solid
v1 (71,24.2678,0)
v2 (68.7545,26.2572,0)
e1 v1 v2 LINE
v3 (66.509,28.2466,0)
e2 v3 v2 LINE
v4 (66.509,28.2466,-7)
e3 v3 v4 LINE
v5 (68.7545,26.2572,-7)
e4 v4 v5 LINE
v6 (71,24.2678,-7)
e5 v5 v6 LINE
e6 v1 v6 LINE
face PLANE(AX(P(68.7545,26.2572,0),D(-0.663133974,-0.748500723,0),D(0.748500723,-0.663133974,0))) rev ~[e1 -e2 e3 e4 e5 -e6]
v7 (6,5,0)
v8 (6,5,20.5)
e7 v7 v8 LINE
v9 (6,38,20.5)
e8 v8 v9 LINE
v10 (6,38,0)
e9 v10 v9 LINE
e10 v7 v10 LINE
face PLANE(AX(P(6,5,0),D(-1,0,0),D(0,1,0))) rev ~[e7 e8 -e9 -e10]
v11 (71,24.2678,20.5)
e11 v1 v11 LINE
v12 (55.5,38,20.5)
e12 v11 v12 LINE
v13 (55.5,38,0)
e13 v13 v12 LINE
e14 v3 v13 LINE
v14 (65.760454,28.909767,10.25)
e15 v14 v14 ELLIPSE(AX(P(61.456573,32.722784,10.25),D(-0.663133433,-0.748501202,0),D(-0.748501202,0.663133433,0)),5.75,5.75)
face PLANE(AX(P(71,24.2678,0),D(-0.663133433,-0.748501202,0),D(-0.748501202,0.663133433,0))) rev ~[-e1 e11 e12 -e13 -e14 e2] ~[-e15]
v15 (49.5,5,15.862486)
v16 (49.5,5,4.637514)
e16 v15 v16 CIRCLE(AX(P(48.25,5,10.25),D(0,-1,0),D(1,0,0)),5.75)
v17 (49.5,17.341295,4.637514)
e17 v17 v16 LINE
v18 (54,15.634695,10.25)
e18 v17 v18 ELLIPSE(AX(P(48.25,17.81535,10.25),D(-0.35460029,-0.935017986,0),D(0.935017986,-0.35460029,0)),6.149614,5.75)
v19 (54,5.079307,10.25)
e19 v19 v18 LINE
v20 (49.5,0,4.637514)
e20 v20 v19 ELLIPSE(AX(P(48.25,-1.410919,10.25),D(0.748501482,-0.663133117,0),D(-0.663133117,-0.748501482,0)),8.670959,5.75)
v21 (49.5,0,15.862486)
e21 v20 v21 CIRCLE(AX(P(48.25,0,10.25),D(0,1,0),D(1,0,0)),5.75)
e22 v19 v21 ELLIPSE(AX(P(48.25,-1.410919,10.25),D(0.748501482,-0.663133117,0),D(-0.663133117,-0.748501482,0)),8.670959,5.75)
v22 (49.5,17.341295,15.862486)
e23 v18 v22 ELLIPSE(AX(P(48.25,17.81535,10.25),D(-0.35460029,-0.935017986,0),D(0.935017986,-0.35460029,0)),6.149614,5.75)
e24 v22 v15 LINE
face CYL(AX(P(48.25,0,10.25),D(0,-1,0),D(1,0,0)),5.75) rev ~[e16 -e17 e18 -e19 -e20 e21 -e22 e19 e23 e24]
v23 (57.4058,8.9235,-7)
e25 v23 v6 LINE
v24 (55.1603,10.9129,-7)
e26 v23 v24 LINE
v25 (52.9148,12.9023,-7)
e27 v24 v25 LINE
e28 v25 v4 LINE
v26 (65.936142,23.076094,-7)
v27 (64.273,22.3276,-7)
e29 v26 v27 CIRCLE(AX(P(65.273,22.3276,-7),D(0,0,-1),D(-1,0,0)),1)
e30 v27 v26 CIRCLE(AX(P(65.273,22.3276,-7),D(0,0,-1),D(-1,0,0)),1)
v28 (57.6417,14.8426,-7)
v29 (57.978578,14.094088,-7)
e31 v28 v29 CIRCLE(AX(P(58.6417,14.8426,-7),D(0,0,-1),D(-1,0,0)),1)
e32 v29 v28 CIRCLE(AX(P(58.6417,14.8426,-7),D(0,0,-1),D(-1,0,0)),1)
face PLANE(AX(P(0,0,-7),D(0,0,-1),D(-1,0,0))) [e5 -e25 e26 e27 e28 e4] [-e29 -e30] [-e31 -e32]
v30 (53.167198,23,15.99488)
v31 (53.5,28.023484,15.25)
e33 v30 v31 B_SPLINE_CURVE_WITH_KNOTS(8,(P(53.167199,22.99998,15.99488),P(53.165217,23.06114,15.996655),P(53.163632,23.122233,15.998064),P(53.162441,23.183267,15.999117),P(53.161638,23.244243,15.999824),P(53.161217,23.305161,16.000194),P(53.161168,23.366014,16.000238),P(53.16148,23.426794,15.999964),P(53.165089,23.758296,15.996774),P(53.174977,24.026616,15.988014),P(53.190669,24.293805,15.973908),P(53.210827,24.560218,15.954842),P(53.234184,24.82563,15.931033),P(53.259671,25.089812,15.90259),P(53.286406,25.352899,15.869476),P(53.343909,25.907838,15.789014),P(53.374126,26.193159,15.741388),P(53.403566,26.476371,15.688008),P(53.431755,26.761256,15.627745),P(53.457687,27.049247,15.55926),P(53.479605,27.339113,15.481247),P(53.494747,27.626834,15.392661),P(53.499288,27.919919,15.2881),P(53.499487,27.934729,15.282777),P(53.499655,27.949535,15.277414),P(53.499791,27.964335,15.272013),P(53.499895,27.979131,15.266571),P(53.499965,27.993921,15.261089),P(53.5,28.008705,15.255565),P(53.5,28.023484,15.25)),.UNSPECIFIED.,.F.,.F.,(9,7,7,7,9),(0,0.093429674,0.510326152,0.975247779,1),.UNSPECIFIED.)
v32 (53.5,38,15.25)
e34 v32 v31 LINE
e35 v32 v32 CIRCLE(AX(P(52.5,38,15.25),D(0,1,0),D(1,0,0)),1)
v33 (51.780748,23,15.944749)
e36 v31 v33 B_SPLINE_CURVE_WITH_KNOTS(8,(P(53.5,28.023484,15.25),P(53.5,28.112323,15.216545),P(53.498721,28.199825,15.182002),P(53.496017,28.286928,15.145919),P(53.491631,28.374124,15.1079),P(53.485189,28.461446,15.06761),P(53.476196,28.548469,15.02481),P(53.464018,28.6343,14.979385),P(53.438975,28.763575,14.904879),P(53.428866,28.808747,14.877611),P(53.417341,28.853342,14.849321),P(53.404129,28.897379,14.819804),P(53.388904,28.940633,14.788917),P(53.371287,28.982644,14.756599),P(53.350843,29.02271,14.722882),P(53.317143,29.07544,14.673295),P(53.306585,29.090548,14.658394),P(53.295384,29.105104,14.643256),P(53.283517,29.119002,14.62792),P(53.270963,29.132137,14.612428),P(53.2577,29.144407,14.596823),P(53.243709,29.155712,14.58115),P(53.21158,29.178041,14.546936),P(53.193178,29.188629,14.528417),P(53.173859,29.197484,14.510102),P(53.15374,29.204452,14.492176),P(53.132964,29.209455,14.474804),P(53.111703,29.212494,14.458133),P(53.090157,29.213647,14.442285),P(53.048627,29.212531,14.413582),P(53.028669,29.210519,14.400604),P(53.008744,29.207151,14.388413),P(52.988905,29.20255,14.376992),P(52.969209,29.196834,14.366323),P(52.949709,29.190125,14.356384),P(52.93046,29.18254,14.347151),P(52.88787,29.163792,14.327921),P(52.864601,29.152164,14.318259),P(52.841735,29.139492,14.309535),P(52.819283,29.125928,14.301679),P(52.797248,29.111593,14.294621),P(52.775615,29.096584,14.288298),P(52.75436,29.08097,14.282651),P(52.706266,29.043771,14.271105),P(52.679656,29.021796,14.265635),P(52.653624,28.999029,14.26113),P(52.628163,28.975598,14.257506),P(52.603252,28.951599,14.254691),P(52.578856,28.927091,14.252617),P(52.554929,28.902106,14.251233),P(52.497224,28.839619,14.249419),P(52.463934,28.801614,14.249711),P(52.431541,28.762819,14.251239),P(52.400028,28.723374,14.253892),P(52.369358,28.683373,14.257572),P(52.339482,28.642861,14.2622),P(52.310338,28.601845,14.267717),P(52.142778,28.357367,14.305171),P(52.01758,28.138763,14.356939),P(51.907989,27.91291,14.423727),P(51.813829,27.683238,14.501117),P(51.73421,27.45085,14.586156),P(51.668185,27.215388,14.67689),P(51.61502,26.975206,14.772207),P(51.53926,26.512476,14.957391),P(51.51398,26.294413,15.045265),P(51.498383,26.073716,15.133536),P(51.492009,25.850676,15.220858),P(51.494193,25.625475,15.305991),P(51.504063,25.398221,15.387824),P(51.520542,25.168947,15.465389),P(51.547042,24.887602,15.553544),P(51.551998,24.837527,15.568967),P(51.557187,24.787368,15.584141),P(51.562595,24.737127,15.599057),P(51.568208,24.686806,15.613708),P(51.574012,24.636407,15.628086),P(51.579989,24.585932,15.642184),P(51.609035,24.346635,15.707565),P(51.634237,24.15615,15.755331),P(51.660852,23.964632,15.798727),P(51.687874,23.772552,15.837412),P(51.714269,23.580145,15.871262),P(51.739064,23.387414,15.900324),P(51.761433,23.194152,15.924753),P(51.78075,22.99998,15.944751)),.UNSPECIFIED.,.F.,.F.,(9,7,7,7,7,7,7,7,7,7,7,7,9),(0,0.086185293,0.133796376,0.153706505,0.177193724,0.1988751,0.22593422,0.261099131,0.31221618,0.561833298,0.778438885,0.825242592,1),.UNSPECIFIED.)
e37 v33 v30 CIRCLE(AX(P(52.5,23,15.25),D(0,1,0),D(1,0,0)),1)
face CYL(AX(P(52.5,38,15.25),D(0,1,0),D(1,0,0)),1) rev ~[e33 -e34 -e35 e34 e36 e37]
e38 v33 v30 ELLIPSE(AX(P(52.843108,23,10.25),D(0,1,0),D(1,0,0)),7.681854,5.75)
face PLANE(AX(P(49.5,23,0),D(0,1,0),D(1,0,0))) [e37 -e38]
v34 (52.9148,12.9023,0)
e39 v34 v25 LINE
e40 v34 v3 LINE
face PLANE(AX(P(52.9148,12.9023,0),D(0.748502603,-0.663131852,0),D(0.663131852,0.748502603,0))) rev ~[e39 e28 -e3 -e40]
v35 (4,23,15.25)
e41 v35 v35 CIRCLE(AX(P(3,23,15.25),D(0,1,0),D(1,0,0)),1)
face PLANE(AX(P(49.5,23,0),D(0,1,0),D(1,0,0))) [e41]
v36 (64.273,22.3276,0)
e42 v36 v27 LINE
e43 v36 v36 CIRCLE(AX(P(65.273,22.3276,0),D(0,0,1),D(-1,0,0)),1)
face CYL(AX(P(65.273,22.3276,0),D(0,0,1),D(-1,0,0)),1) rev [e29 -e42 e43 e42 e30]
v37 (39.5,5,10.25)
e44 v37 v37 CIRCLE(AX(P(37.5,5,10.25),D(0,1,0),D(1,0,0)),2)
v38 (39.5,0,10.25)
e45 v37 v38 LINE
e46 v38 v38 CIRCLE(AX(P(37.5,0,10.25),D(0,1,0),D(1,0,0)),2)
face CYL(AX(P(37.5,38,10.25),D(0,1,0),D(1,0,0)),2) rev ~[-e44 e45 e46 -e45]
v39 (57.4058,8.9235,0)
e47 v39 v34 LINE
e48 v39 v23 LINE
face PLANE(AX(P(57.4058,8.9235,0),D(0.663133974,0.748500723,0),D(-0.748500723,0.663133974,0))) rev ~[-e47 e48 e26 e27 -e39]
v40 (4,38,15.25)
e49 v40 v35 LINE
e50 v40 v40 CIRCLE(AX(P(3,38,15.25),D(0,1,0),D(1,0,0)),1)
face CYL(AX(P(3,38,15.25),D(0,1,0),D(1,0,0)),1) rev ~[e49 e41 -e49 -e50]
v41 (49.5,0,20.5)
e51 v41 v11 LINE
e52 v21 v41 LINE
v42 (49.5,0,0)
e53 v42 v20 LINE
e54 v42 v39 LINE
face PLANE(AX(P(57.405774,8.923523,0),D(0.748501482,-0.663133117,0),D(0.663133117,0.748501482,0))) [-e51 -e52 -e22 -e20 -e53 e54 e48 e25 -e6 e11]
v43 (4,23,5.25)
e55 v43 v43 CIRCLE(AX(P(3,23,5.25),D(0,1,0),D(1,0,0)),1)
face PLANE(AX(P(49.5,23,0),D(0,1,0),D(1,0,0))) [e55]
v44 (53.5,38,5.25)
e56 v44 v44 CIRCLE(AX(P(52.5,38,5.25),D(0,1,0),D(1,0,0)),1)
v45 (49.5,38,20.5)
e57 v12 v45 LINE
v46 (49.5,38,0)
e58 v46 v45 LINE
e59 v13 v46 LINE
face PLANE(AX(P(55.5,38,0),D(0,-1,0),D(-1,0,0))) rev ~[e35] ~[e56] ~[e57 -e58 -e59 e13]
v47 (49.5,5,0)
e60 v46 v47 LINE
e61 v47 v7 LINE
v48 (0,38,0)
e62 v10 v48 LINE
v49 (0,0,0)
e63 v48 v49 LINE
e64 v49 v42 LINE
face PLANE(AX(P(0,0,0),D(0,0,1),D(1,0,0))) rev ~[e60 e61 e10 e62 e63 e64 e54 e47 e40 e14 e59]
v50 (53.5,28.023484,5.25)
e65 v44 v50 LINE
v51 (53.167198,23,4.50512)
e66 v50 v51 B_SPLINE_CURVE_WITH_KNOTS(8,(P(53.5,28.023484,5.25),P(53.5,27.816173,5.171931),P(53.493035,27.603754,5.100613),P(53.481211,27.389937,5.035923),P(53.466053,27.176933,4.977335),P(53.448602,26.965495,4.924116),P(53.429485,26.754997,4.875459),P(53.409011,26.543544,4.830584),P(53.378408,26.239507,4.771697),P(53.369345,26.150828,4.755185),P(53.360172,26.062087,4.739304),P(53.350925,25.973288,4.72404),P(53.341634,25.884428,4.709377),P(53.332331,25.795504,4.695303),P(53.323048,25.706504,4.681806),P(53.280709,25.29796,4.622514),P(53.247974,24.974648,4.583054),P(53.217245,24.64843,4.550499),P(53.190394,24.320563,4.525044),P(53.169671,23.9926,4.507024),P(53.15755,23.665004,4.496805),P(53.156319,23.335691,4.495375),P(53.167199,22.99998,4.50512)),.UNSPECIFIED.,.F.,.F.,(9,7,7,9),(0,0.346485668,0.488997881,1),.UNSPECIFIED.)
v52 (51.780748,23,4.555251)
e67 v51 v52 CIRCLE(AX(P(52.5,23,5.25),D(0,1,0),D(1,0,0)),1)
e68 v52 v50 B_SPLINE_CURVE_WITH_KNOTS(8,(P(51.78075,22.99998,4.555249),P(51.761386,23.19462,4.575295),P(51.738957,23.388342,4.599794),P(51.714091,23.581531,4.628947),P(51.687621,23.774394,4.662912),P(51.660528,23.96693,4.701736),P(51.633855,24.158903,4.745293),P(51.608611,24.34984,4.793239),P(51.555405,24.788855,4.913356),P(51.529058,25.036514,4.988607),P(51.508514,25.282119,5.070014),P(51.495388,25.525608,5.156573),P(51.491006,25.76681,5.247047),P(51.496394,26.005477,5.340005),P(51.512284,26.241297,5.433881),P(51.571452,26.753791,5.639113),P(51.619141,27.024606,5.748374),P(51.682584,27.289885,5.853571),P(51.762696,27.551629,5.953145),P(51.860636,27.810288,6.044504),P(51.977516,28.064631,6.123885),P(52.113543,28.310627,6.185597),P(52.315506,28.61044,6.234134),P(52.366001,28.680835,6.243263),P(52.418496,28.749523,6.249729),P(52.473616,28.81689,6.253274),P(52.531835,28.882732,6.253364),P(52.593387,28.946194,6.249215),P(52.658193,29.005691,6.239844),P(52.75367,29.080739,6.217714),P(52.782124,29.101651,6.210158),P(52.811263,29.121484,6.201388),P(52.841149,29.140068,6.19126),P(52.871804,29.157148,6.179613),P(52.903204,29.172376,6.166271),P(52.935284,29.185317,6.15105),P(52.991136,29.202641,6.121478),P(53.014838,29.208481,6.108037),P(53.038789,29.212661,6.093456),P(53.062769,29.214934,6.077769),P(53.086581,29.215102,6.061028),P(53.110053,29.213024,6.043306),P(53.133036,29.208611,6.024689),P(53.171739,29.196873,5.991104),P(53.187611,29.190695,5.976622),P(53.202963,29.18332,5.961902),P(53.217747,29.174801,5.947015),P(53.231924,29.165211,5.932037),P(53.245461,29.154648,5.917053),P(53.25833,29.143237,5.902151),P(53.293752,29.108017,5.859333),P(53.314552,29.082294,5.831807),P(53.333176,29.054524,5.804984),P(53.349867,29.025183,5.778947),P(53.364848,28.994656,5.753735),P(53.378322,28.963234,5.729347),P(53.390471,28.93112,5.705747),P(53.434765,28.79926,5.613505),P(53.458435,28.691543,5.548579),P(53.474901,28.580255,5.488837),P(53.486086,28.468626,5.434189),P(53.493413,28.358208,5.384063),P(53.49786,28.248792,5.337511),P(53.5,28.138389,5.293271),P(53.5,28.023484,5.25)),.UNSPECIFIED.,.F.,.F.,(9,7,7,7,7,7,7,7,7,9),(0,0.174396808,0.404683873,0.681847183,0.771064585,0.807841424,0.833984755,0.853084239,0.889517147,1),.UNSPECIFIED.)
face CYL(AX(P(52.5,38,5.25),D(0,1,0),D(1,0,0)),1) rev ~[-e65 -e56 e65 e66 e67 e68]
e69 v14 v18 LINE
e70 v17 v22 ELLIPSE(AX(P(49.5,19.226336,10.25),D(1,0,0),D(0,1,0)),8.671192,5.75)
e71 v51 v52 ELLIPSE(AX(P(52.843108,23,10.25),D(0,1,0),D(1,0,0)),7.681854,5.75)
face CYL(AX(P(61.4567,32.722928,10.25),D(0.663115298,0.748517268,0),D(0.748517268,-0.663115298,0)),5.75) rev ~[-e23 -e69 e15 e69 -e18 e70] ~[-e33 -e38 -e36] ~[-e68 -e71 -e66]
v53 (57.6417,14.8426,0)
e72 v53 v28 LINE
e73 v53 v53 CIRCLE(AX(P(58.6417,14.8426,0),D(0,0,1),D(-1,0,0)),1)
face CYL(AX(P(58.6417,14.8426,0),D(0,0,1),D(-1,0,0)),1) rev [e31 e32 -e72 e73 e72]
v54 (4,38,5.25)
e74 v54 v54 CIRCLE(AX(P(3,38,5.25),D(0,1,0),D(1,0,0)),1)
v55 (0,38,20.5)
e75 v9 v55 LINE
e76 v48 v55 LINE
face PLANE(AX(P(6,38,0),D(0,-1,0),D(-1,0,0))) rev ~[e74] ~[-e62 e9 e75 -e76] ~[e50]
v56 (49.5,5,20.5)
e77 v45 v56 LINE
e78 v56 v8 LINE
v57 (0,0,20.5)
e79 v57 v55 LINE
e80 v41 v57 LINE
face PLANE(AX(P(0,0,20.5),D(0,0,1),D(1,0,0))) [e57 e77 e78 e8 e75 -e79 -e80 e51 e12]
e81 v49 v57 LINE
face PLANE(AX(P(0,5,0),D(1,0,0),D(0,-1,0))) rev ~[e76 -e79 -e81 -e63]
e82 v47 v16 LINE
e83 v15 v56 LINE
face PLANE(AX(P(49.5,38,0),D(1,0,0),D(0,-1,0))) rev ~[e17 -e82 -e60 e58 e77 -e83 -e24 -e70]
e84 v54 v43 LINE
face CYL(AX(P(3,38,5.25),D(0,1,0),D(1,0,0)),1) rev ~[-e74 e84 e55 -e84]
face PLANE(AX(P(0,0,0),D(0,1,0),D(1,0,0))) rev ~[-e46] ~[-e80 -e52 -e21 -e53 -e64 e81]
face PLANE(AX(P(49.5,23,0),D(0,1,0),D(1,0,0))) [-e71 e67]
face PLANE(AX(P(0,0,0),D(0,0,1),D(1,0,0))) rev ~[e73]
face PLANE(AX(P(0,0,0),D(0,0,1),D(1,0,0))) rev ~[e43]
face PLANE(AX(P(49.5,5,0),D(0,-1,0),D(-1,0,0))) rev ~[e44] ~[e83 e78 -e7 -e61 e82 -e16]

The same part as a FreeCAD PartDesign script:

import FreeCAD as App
import Part
import Sketcher
Q = App.Units.Quantity

doc = App.newDocument("Part")
body = doc.addObject("PartDesign::Body", "Body")

# Sketch on XY plane
sketch1 = body.newObject("Sketcher::SketchObject", "Sketch")
sketch1.AttachmentSupport = (doc.getObject("XY_Plane"), [""])
sketch1.MapMode = "FlatFace"
sketch1.addGeometry([
    Part.LineSegment(App.Vector(0, 0, 0), App.Vector(49.5, 0, 0)),  # 0
    Part.LineSegment(App.Vector(49.5, 0, 0), App.Vector(71, 24.2678, 0)),  # 1
    Part.LineSegment(App.Vector(71, 24.2678, 0), App.Vector(55.5, 38, 0)),  # 2
    Part.LineSegment(App.Vector(55.5, 38, 0), App.Vector(49.5, 38, 0)),  # 3
    Part.LineSegment(App.Vector(49.5, 38, 0), App.Vector(49.5, 5, 0)),  # 4
    Part.LineSegment(App.Vector(49.5, 5, 0), App.Vector(6, 5, 0)),  # 5
    Part.LineSegment(App.Vector(6, 5, 0), App.Vector(6, 38, 0)),  # 6
    Part.LineSegment(App.Vector(6, 38, 0), App.Vector(0, 38, 0)),  # 7
    Part.LineSegment(App.Vector(0, 38, 0), App.Vector(0, 0, 0)),  # 8
], False)
sketch1.addConstraint([
    Sketcher.Constraint("Coincident", 0, 2, 1, 1),
    Sketcher.Constraint("Coincident", 1, 2, 2, 1),
    Sketcher.Constraint("Coincident", 2, 2, 3, 1),
    Sketcher.Constraint("Coincident", 3, 2, 4, 1),
    Sketcher.Constraint("Coincident", 4, 2, 5, 1),
    Sketcher.Constraint("Coincident", 5, 2, 6, 1),
    Sketcher.Constraint("Coincident", 6, 2, 7, 1),
    Sketcher.Constraint("Coincident", 7, 2, 8, 1),
    Sketcher.Constraint("Coincident", 8, 2, 0, 1),
    Sketcher.Constraint("Horizontal", 0),
    Sketcher.Constraint("Horizontal", 3),
    Sketcher.Constraint("Vertical", 4),
    Sketcher.Constraint("Horizontal", 5),
    Sketcher.Constraint("Vertical", 6),
    Sketcher.Constraint("Horizontal", 7),
    Sketcher.Constraint("Vertical", 8),
    Sketcher.Constraint("Coincident", 8, 2, -1, 1),
    Sketcher.Constraint("Perpendicular", 1, 2),
    Sketcher.Constraint("Horizontal", 3, 2, 6, 2),
    Sketcher.Constraint("Vertical", 0, 2, 3, 2),
    Sketcher.Constraint("Equal", 3, 7),
    Sketcher.Constraint("DistanceX", 3, 2, 3, 1, Q("6 mm")),
    Sketcher.Constraint("DistanceY", 8, 2, 8, 1, Q("38 mm")),
    Sketcher.Constraint("DistanceX", 5, 2, 5, 1, Q("43.5 mm")),
    Sketcher.Constraint("DistanceX", -1, 1, 1, 2, Q("71 mm")),
    Sketcher.Constraint("DistanceY", -1, 1, 4, 2, Q("5 mm")),
])
pad1 = body.newObject("PartDesign::Pad", "Pad")
pad1.Profile = sketch1
pad1.Length = 20.5

# Sketch on XY plane
sketch2 = body.newObject("Sketcher::SketchObject", "Sketch001")
sketch2.AttachmentSupport = (doc.getObject("XY_Plane"), [""])
sketch2.MapMode = "FlatFace"
sketch2.addGeometry([
    Part.LineSegment(App.Vector(71, 24.2678, 0), App.Vector(57.405774, 8.923523, 0)),  # 0
    Part.LineSegment(App.Vector(57.4058, 8.9235, 0), App.Vector(55.1603, 10.9129, 0)),  # 1
    Part.LineSegment(App.Vector(55.1603, 10.9129, 0), App.Vector(52.9148, 12.9023, 0)),  # 2
    Part.LineSegment(App.Vector(52.9148, 12.9023, 0), App.Vector(66.509, 28.2466, 0)),  # 3
    Part.LineSegment(App.Vector(66.509, 28.2466, 0), App.Vector(68.7545, 26.2572, 0)),  # 4
    Part.LineSegment(App.Vector(68.7545, 26.2572, 0), App.Vector(71, 24.2678, 0)),  # 5
    Part.Circle(App.Vector(58.6417, 14.8426, 0), App.Vector(0, 0, 1), 1),  # 6
    Part.Circle(App.Vector(65.273, 22.3276, 0), App.Vector(0, 0, 1), 1),  # 7
], False)
sketch2.addConstraint([
    Sketcher.Constraint("Coincident", 0, 2, 1, 1),
    Sketcher.Constraint("Coincident", 1, 2, 2, 1),
    Sketcher.Constraint("Coincident", 2, 2, 3, 1),
    Sketcher.Constraint("Coincident", 3, 2, 4, 1),
    Sketcher.Constraint("Coincident", 4, 2, 5, 1),
    Sketcher.Constraint("Coincident", 5, 2, 0, 1),
    Sketcher.Constraint("Equal", 6, 7),
    Sketcher.Constraint("Perpendicular", 0, 1),
    Sketcher.Constraint("Parallel", 1, 2),
    Sketcher.Constraint("Perpendicular", 2, 3),
    Sketcher.Constraint("Perpendicular", 3, 4),
    Sketcher.Constraint("Parallel", 4, 5),
    Sketcher.Constraint("Equal", 1, 2),
    Sketcher.Constraint("Equal", 2, 4),
    Sketcher.Constraint("Diameter", 6, Q("2 mm")),
    Sketcher.Constraint("Distance", 0, Q("20.5 mm")),
    Sketcher.Constraint("Distance", 1, Q("3 mm")),
    Sketcher.Constraint("DistanceX", -1, 1, 5, 2, Q("71 mm")),
    Sketcher.Constraint("Angle", 0, Q("-131.5393 deg")),
    Sketcher.Constraint("DistanceX", -1, 1, 7, 3, Q("65.273 mm")),
    Sketcher.Constraint("DistanceY", -1, 1, 1, 2, Q("10.913 mm")),
    Sketcher.Constraint("DistanceY", 6, 3, 7, 3, Q("7.485 mm")),
    Sketcher.Constraint("DistanceX", 0, 2, 6, 3, Q("1.236 mm")),
    Sketcher.Constraint("DistanceY", 0, 2, 6, 3, Q("5.919 mm")),
])
pad2 = body.newObject("PartDesign::Pad", "Pad001")
pad2.Profile = sketch2
pad2.Length = 7
pad2.Reversed = True

# Sketch on XZ plane
sketch3 = body.newObject("Sketcher::SketchObject", "Sketch002")
sketch3.AttachmentSupport = (doc.getObject("XZ_Plane"), [""])
sketch3.MapMode = "FlatFace"
sketch3.AttachmentOffset = App.Placement(App.Vector(0, 0, -38), App.Rotation())
sketch3.addGeometry(Part.Circle(App.Vector(37.5, 10.25, 0), App.Vector(0, 0, 1), 2), False)
sketch3.addConstraint([
    Sketcher.Constraint("Diameter", 0, Q("4 mm")),
    Sketcher.Constraint("DistanceX", -1, 1, 0, 3, Q("37.5 mm")),
    Sketcher.Constraint("DistanceY", -1, 1, 0, 3, Q("10.25 mm")),
])
pocket1 = body.newObject("PartDesign::Pocket", "Pocket")
pocket1.Profile = sketch3
pocket1.Length = 38
pocket1.Reversed = True

# Sketch on XZ plane
sketch4 = body.newObject("Sketcher::SketchObject", "Sketch003")
sketch4.AttachmentSupport = (doc.getObject("XZ_Plane"), [""])
sketch4.MapMode = "FlatFace"
sketch4.AttachmentOffset = App.Placement(App.Vector(0, 0, -38), App.Rotation())
sketch4.addGeometry([
    Part.Circle(App.Vector(52.5, 5.25, 0), App.Vector(0, 0, 1), 1),
    Part.Circle(App.Vector(52.5, 15.25, 0), App.Vector(0, 0, 1), 1),
    Part.Circle(App.Vector(3, 5.25, 0), App.Vector(0, 0, 1), 1),
    Part.Circle(App.Vector(3, 15.25, 0), App.Vector(0, 0, 1), 1),
], False)
sketch4.addConstraint([
    Sketcher.Constraint("Equal", 0, 1),
    Sketcher.Constraint("Equal", 1, 2),
    Sketcher.Constraint("Equal", 2, 3),
    Sketcher.Constraint("Horizontal", 0, 3, 2, 3),
    Sketcher.Constraint("Horizontal", 1, 3, 3, 3),
    Sketcher.Constraint("Vertical", 0, 3, 1, 3),
    Sketcher.Constraint("Vertical", 2, 3, 3, 3),
    Sketcher.Constraint("Diameter", 0, Q("2 mm")),
    Sketcher.Constraint("DistanceY", 0, 3, 1, 3, Q("10 mm")),
    Sketcher.Constraint("DistanceX", -1, 1, 2, 3, Q("3 mm")),
    Sketcher.Constraint("DistanceX", -1, 1, 0, 3, Q("52.5 mm")),
    Sketcher.Constraint("DistanceY", -1, 1, 0, 3, Q("5.25 mm")),
])
pocket2 = body.newObject("PartDesign::Pocket", "Pocket001")
pocket2.Profile = sketch4
pocket2.Length = 15
pocket2.Reversed = True

# Sketch on an angled plane
sketch5 = body.newObject("Sketcher::SketchObject", "Sketch004")
sketch5.Placement = App.Placement(App.Vector(55.5, 38, 20.5), App.Rotation(App.Vector(0.748517268, -0.663115298, 0), App.Vector(0, 0, -0.999999999), App.Vector(0.663115298, 0.748517268, 0), "ZXY"))
sketch5.addGeometry(Part.Circle(App.Vector(7.958, 10.25, 0), App.Vector(0, 0, 1), 5.75), False)
sketch5.addConstraint([
    Sketcher.Constraint("Diameter", 0, Q("11.5 mm")),
    Sketcher.Constraint("DistanceY", -1, 1, 0, 3, Q("10.25 mm")),
    Sketcher.Constraint("DistanceX", -1, 1, 0, 3, Q("7.958 mm")),
])
pocket3 = body.newObject("PartDesign::Pocket", "Pocket002")
pocket3.Profile = sketch5
pocket3.Type = "UpToFirst"

# Sketch on XZ plane
sketch6 = body.newObject("Sketcher::SketchObject", "Sketch005")
sketch6.AttachmentSupport = (doc.getObject("XZ_Plane"), [""])
sketch6.MapMode = "FlatFace"
sketch6.addGeometry(Part.Circle(App.Vector(48.25, 10.25, 0), App.Vector(0, 0, 1), 5.75), False)
sketch6.addConstraint([
    Sketcher.Constraint("Diameter", 0, Q("11.5 mm")),
    Sketcher.Constraint("DistanceX", -1, 1, 0, 3, Q("48.25 mm")),
    Sketcher.Constraint("DistanceY", -1, 1, 0, 3, Q("10.25 mm")),
])
pocket4 = body.newObject("PartDesign::Pocket", "Pocket003")
pocket4.Profile = sketch6
pocket4.Length = 17.3413

doc.recompute()
